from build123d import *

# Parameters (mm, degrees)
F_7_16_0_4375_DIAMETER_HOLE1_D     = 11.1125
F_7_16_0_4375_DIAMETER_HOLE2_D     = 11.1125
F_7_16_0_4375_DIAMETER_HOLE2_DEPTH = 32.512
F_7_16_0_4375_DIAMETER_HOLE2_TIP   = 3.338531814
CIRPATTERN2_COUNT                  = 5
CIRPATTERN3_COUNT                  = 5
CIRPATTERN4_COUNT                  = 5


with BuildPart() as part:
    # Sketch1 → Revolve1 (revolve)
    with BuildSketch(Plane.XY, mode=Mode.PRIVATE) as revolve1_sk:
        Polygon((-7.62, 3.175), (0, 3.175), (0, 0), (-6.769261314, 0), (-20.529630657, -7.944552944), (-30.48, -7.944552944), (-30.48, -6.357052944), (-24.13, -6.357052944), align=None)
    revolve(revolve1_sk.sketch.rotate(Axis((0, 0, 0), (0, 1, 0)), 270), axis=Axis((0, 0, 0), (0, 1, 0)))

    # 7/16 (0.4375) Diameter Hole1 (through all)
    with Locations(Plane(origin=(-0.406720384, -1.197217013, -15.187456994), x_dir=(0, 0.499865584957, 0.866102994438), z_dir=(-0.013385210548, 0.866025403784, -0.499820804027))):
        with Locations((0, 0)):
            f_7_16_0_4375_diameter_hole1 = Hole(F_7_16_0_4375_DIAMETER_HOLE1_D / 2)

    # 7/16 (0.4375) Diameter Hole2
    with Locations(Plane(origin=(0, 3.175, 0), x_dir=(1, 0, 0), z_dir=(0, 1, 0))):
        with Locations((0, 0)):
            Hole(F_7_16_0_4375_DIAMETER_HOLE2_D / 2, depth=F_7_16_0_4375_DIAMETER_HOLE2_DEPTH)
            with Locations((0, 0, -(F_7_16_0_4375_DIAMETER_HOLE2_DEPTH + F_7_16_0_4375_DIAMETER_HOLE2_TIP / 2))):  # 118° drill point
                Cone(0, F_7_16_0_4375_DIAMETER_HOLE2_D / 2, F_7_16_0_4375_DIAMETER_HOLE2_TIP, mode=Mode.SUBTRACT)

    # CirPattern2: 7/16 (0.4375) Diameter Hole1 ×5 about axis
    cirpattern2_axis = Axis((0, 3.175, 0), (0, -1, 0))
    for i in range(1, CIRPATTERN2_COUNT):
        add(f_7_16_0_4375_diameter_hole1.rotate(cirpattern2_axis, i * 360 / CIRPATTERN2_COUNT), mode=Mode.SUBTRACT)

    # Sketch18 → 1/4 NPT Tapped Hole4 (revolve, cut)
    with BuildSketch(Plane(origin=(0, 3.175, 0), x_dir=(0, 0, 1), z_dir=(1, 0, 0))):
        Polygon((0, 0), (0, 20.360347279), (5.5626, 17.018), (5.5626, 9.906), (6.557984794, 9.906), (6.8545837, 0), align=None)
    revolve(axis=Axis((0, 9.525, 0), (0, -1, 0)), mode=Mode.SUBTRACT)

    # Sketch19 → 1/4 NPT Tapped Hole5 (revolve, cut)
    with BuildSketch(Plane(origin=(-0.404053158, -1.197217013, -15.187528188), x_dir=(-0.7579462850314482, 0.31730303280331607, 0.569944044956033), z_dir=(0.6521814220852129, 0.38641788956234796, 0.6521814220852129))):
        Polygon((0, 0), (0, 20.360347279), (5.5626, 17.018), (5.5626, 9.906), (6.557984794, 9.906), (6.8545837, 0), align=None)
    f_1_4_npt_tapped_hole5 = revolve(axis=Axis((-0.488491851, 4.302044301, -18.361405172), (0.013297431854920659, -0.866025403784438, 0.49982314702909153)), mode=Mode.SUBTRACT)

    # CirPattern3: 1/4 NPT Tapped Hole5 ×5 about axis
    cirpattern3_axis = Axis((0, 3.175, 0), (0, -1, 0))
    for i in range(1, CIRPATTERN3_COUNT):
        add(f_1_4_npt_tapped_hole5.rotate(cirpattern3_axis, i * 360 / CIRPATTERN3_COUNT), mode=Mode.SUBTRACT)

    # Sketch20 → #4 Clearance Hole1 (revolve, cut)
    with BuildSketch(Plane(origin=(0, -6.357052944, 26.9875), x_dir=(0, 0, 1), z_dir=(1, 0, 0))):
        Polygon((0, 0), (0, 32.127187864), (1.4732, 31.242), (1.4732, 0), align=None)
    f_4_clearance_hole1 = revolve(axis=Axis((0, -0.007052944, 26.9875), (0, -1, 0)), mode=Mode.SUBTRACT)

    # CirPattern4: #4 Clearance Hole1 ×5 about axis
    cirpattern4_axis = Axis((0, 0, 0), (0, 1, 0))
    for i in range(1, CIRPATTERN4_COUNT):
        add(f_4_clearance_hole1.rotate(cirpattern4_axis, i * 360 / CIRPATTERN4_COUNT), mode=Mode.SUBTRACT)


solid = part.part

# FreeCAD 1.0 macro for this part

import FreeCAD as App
import Part
import Sketcher
from FreeCAD import Vector
Q = App.Units.Quantity

doc = App.newDocument("Part")
body = doc.addObject("PartDesign::Body", "Body")

sketch1 = body.newObject("Sketcher::SketchObject", "Sketch")
sketch1.AttachmentSupport = (doc.getObject("XY_Plane"), [""])
sketch1.MapMode = "FlatFace"
sketch1.addGeometry([
    Part.LineSegment(Vector(0, 3.2, 0), Vector(-7.6, 3.2, 0)),
    Part.LineSegment(Vector(-7.6, 3.2, 0), Vector(-24.1, -6.4, 0)),
    Part.LineSegment(Vector(-24.1, -6.4, 0), Vector(-30.5, -6.4, 0)),
    Part.LineSegment(Vector(-30.5, -6.4, 0), Vector(-30.5, -7.9, 0)),
    Part.LineSegment(Vector(-30.5, -7.9, 0), Vector(-20.5, -7.9, 0)),
    Part.LineSegment(Vector(-20.5, -7.9, 0), Vector(-6.8, 0, 0)),
    Part.LineSegment(Vector(-6.8, 0, 0), Vector(0, 0, 0)),
    Part.LineSegment(Vector(0, 0, 0), Vector(0, 3.2, 0)),
], False)
sketch1.addConstraint([
    Sketcher.Constraint("Coincident", 0, 2, 1, 1),
    Sketcher.Constraint("Coincident", 1, 2, 2, 1),
    Sketcher.Constraint("Coincident", 2, 2, 3, 1),
    Sketcher.Constraint("Coincident", 3, 2, 4, 1),
    Sketcher.Constraint("Coincident", 4, 2, 5, 1),
    Sketcher.Constraint("Coincident", 5, 2, 6, 1),
    Sketcher.Constraint("Coincident", 6, 2, 7, 1),
    Sketcher.Constraint("Coincident", 7, 2, 0, 1),
    Sketcher.Constraint("Horizontal", 0),
    Sketcher.Constraint("Horizontal", 2),
    Sketcher.Constraint("Vertical", 3),
    Sketcher.Constraint("Horizontal", 4),
    Sketcher.Constraint("Horizontal", 6),
    Sketcher.Constraint("Vertical", 7),
    Sketcher.Constraint("Coincident", 6, 2, -1, 1),
    Sketcher.Constraint("Parallel", 1, 5),
    Sketcher.Constraint("DistanceX", 0, 2, 0, 1, Q("0.3 in")),
    Sketcher.Constraint("Angle", 1, Q("-150 deg")),
    Sketcher.Constraint("DistanceX", 2, 2, 2, 1, Q("0.25 in")),
    Sketcher.Constraint("DistanceX", 2, 2, -1, 1, Q("1.2 in")),
    Sketcher.Constraint("DistanceY", 3, 2, 3, 1, Q("0.0625 in")),
    Sketcher.Constraint("DistanceY", 7, 1, 7, 2, Q("0.125 in")),
    Sketcher.Constraint("DistanceX", 4, 1, 4, 2, Q("9.950369 mm")),
])
revolution = body.newObject("PartDesign::Revolution", "Revolution")
revolution.Profile = sketch1
revolution.ReferenceAxis = (sketch1, ["V_Axis"])
revolution.Angle = 360

sketch2 = body.newObject("Sketcher::SketchObject", "Sketch001")
sketch2.Placement = App.Placement(Vector(-0.087802, 5.680807, -3.27864), App.Rotation(Vector(0, 0.499865585, 0.866102994), Vector(0.999910414, 0.011592971, -0.006690806), Vector(-0.013385211, 0.866025404, -0.499820804), "ZXY"))
sketch2.addGeometry(Part.Circle(Vector(-14, 0, 0), Vector(0, 0, 1), 6), False)
sketch2.addConstraint([
    Sketcher.Constraint("Diameter", 0, Q("0.4375 in")),
    Sketcher.Constraint("DistanceX", 0, 3, -1, 1, Q("13.75235 mm")),
    Sketcher.Constraint("DistanceY", 0, 3, -1, 1, Q("0.318947 mm")),
])
doc.recompute()
hole = body.newObject("PartDesign::Hole", "Hole")
hole.Profile = sketch2
hole.ThreadType = "None"
hole.Diameter = Q("0.4375 in")
hole.DepthType = "ThroughAll"

sketch3 = body.newObject("Sketcher::SketchObject", "Sketch002")
sketch3.AttachmentSupport = (doc.getObject("XZ_Plane"), [""])
sketch3.MapMode = "FlatFace"
sketch3.AttachmentOffset = App.Placement(Vector(0, 0, -0.125 * 25.4), App.Rotation())
sketch3.addGeometry(Part.Circle(Vector(0, 0, 0), Vector(0, 0, 1), 6), False)
sketch3.addConstraint([
    Sketcher.Constraint("Coincident", 0, 3, -1, 1),
    Sketcher.Constraint("Diameter", 0, Q("0.4375 in")),
])
doc.recompute()
hole2 = body.newObject("PartDesign::Hole", "Hole001")
hole2.Profile = sketch3
hole2.ThreadType = "None"
hole2.Diameter = Q("0.4375 in")
hole2.DepthType = "Dimension"
hole2.Depth = Q("1.28 in")
hole2.DrillPoint = "Angled"
hole2.DrillPointAngle = 118
hole2.Reversed = True
doc.recompute()

polarpattern = body.newObject("PartDesign::PolarPattern", "PolarPattern")
polarpattern.Originals = [hole]
polarpattern.Axis = (doc.getObject("Y_Axis"), [""])
polarpattern.Angle = 360
polarpattern.Occurrences = 5
body.Tip = polarpattern

sketch4 = body.newObject("Sketcher::SketchObject", "Sketch003")
sketch4.AttachmentSupport = (doc.getObject("YZ_Plane"), [""])
sketch4.MapMode = "FlatFace"
sketch4.addGeometry([
    Part.LineSegment(Vector(-17.2, 0, 0), Vector(3.2, 0, 0)),
    Part.LineSegment(Vector(3.2, 0, 0), Vector(3.2, 6.9, 0)),
    Part.LineSegment(Vector(3.2, 6.9, 0), Vector(-6.7, 6.6, 0)),
    Part.LineSegment(Vector(-6.7, 6.6, 0), Vector(-6.7, 5.6, 0)),
    Part.LineSegment(Vector(-6.7, 5.6, 0), Vector(-13.8, 5.6, 0)),
    Part.LineSegment(Vector(-13.8, 5.6, 0), Vector(-17.2, 0, 0)),
], False)
sketch4.addConstraint([
    Sketcher.Constraint("Coincident", 0, 2, 1, 1),
    Sketcher.Constraint("Coincident", 1, 2, 2, 1),
    Sketcher.Constraint("Coincident", 2, 2, 3, 1),
    Sketcher.Constraint("Coincident", 3, 2, 4, 1),
    Sketcher.Constraint("Coincident", 4, 2, 5, 1),
    Sketcher.Constraint("Coincident", 5, 2, 0, 1),
    Sketcher.Constraint("Horizontal", 0),
    Sketcher.Constraint("Vertical", 1),
    Sketcher.Constraint("Vertical", 3),
    Sketcher.Constraint("Horizontal", 4),
    Sketcher.Constraint("PointOnObject", 0, 2, -1),
    Sketcher.Constraint("Angle", 5, Q("-121 deg")),
    Sketcher.Constraint("DistanceX", 4, 2, 4, 1, Q("0.28 in")),
    Sketcher.Constraint("DistanceX", 2, 2, 1, 2, Q("0.39 in")),
    Sketcher.Constraint("DistanceX", -1, 1, 0, 2, Q("0.125 in")),
    Sketcher.Constraint("DistanceY", -1, 1, 3, 2, Q("0.219 in")),
    Sketcher.Constraint("DistanceY", 2, 2, 1, 2, Q("0.296599 mm")),
    Sketcher.Constraint("DistanceY", 1, 1, 1, 2, Q("6.854584 mm")),
])
groove = body.newObject("PartDesign::Groove", "Groove")
groove.Profile = sketch4
groove.ReferenceAxis = (sketch4, ["H_Axis"])
groove.Angle = 360

sketch5 = body.newObject("Sketcher::SketchObject", "Sketch004")
sketch5.Placement = App.Placement(Vector(-0.404053, -1.197217, -15.187528), App.Rotation(Vector(-0.757946285, 0.317303033, 0.569944045), Vector(0.013297432, -0.866025404, 0.499823147), Vector(0.652181422, 0.38641789, 0.652181422), "ZXY"))
sketch5.addGeometry([
    Part.LineSegment(Vector(0, 20.4, 0), Vector(0, 0, 0)),
    Part.LineSegment(Vector(0, 0, 0), Vector(6.9, 0, 0)),
    Part.LineSegment(Vector(6.9, 0, 0), Vector(6.6, 9.9, 0)),
    Part.LineSegment(Vector(6.6, 9.9, 0), Vector(5.6, 9.9, 0)),
    Part.LineSegment(Vector(5.6, 9.9, 0), Vector(5.6, 17, 0)),
    Part.LineSegment(Vector(5.6, 17, 0), Vector(0, 20.4, 0)),
], False)
sketch5.addConstraint([
    Sketcher.Constraint("Coincident", 0, 2, 1, 1),
    Sketcher.Constraint("Coincident", 1, 2, 2, 1),
    Sketcher.Constraint("Coincident", 2, 2, 3, 1),
    Sketcher.Constraint("Coincident", 3, 2, 4, 1),
    Sketcher.Constraint("Coincident", 4, 2, 5, 1),
    Sketcher.Constraint("Coincident", 5, 2, 0, 1),
    Sketcher.Constraint("Vertical", 0),
    Sketcher.Constraint("Horizontal", 1),
    Sketcher.Constraint("Horizontal", 3),
    Sketcher.Constraint("Vertical", 4),
    Sketcher.Constraint("Coincident", 0, 2, -1, 1),
    Sketcher.Constraint("Angle", 5, Q("149 deg")),
    Sketcher.Constraint("DistanceY", 4, 1, 4, 2, Q("0.28 in")),
    Sketcher.Constraint("DistanceY", -1, 1, 2, 2, Q("0.39 in")),
    Sketcher.Constraint("DistanceX", -1, 1, 3, 2, Q("0.219 in")),
    Sketcher.Constraint("DistanceX", 2, 2, 1, 2, Q("0.296599 mm")),
    Sketcher.Constraint("DistanceX", 1, 1, 1, 2, Q("6.854584 mm")),
])
groove2 = body.newObject("PartDesign::Groove", "Groove001")
groove2.Profile = sketch5
groove2.ReferenceAxis = (sketch5, ["V_Axis"])
groove2.Angle = 360
doc.recompute()

polarpattern2 = body.newObject("PartDesign::PolarPattern", "PolarPattern001")
polarpattern2.Originals = [groove2]
polarpattern2.Axis = (doc.getObject("Y_Axis"), [""])
polarpattern2.Angle = 360
polarpattern2.Occurrences = 5
body.Tip = polarpattern2

sketch6 = body.newObject("Sketcher::SketchObject", "Sketch005")
sketch6.AttachmentSupport = (doc.getObject("YZ_Plane"), [""])
sketch6.MapMode = "FlatFace"
sketch6.addGeometry([
    Part.LineSegment(Vector(-38.5, 27, 0), Vector(-6.4, 27, 0)),
    Part.LineSegment(Vector(-6.4, 27, 0), Vector(-6.4, 28.5, 0)),
    Part.LineSegment(Vector(-6.4, 28.5, 0), Vector(-37.6, 28.5, 0)),
    Part.LineSegment(Vector(-37.6, 28.5, 0), Vector(-38.5, 27, 0)),
], False)
sketch6.addGeometry(Part.LineSegment(Vector(-6.4, 27, 0), Vector(-38.5, 27, 0)), True)
sketch6.addConstraint([
    Sketcher.Constraint("Coincident", 0, 2, 1, 1),
    Sketcher.Constraint("Coincident", 1, 2, 2, 1),
    Sketcher.Constraint("Coincident", 2, 2, 3, 1),
    Sketcher.Constraint("Coincident", 3, 2, 0, 1),
    Sketcher.Constraint("Horizontal", 0),
    Sketcher.Constraint("Vertical", 1),
    Sketcher.Constraint("Horizontal", 2),
    Sketcher.Constraint("Horizontal", 4),
    Sketcher.Constraint("Coincident", 4, 1, 0, 2),
    Sketcher.Constraint("Equal", 0, 4),
    Sketcher.Constraint("Angle", 3, Q("-121 deg")),
    Sketcher.Constraint("DistanceX", 2, 2, 2, 1, Q("1.23 in")),
    Sketcher.Constraint("DistanceY", 1, 1, 1, 2, Q("0.058 in")),
    Sketcher.Constraint("DistanceY", -1, 1, 0, 2, Q("1.0625 in")),
    Sketcher.Constraint("DistanceX", 3, 2, -1, 1, Q("38.484241 mm")),
])
groove3 = body.newObject("PartDesign::Groove", "Groove002")
groove3.Profile = sketch6
groove3.ReferenceAxis = (sketch6, ["Axis0"])
groove3.Angle = 360
doc.recompute()

polarpattern3 = body.newObject("PartDesign::PolarPattern", "PolarPattern002")
polarpattern3.Originals = [groove3]
polarpattern3.Axis = (doc.getObject("Y_Axis"), [""])
polarpattern3.Angle = 360
polarpattern3.Occurrences = 5
body.Tip = polarpattern3

doc.recompute()
